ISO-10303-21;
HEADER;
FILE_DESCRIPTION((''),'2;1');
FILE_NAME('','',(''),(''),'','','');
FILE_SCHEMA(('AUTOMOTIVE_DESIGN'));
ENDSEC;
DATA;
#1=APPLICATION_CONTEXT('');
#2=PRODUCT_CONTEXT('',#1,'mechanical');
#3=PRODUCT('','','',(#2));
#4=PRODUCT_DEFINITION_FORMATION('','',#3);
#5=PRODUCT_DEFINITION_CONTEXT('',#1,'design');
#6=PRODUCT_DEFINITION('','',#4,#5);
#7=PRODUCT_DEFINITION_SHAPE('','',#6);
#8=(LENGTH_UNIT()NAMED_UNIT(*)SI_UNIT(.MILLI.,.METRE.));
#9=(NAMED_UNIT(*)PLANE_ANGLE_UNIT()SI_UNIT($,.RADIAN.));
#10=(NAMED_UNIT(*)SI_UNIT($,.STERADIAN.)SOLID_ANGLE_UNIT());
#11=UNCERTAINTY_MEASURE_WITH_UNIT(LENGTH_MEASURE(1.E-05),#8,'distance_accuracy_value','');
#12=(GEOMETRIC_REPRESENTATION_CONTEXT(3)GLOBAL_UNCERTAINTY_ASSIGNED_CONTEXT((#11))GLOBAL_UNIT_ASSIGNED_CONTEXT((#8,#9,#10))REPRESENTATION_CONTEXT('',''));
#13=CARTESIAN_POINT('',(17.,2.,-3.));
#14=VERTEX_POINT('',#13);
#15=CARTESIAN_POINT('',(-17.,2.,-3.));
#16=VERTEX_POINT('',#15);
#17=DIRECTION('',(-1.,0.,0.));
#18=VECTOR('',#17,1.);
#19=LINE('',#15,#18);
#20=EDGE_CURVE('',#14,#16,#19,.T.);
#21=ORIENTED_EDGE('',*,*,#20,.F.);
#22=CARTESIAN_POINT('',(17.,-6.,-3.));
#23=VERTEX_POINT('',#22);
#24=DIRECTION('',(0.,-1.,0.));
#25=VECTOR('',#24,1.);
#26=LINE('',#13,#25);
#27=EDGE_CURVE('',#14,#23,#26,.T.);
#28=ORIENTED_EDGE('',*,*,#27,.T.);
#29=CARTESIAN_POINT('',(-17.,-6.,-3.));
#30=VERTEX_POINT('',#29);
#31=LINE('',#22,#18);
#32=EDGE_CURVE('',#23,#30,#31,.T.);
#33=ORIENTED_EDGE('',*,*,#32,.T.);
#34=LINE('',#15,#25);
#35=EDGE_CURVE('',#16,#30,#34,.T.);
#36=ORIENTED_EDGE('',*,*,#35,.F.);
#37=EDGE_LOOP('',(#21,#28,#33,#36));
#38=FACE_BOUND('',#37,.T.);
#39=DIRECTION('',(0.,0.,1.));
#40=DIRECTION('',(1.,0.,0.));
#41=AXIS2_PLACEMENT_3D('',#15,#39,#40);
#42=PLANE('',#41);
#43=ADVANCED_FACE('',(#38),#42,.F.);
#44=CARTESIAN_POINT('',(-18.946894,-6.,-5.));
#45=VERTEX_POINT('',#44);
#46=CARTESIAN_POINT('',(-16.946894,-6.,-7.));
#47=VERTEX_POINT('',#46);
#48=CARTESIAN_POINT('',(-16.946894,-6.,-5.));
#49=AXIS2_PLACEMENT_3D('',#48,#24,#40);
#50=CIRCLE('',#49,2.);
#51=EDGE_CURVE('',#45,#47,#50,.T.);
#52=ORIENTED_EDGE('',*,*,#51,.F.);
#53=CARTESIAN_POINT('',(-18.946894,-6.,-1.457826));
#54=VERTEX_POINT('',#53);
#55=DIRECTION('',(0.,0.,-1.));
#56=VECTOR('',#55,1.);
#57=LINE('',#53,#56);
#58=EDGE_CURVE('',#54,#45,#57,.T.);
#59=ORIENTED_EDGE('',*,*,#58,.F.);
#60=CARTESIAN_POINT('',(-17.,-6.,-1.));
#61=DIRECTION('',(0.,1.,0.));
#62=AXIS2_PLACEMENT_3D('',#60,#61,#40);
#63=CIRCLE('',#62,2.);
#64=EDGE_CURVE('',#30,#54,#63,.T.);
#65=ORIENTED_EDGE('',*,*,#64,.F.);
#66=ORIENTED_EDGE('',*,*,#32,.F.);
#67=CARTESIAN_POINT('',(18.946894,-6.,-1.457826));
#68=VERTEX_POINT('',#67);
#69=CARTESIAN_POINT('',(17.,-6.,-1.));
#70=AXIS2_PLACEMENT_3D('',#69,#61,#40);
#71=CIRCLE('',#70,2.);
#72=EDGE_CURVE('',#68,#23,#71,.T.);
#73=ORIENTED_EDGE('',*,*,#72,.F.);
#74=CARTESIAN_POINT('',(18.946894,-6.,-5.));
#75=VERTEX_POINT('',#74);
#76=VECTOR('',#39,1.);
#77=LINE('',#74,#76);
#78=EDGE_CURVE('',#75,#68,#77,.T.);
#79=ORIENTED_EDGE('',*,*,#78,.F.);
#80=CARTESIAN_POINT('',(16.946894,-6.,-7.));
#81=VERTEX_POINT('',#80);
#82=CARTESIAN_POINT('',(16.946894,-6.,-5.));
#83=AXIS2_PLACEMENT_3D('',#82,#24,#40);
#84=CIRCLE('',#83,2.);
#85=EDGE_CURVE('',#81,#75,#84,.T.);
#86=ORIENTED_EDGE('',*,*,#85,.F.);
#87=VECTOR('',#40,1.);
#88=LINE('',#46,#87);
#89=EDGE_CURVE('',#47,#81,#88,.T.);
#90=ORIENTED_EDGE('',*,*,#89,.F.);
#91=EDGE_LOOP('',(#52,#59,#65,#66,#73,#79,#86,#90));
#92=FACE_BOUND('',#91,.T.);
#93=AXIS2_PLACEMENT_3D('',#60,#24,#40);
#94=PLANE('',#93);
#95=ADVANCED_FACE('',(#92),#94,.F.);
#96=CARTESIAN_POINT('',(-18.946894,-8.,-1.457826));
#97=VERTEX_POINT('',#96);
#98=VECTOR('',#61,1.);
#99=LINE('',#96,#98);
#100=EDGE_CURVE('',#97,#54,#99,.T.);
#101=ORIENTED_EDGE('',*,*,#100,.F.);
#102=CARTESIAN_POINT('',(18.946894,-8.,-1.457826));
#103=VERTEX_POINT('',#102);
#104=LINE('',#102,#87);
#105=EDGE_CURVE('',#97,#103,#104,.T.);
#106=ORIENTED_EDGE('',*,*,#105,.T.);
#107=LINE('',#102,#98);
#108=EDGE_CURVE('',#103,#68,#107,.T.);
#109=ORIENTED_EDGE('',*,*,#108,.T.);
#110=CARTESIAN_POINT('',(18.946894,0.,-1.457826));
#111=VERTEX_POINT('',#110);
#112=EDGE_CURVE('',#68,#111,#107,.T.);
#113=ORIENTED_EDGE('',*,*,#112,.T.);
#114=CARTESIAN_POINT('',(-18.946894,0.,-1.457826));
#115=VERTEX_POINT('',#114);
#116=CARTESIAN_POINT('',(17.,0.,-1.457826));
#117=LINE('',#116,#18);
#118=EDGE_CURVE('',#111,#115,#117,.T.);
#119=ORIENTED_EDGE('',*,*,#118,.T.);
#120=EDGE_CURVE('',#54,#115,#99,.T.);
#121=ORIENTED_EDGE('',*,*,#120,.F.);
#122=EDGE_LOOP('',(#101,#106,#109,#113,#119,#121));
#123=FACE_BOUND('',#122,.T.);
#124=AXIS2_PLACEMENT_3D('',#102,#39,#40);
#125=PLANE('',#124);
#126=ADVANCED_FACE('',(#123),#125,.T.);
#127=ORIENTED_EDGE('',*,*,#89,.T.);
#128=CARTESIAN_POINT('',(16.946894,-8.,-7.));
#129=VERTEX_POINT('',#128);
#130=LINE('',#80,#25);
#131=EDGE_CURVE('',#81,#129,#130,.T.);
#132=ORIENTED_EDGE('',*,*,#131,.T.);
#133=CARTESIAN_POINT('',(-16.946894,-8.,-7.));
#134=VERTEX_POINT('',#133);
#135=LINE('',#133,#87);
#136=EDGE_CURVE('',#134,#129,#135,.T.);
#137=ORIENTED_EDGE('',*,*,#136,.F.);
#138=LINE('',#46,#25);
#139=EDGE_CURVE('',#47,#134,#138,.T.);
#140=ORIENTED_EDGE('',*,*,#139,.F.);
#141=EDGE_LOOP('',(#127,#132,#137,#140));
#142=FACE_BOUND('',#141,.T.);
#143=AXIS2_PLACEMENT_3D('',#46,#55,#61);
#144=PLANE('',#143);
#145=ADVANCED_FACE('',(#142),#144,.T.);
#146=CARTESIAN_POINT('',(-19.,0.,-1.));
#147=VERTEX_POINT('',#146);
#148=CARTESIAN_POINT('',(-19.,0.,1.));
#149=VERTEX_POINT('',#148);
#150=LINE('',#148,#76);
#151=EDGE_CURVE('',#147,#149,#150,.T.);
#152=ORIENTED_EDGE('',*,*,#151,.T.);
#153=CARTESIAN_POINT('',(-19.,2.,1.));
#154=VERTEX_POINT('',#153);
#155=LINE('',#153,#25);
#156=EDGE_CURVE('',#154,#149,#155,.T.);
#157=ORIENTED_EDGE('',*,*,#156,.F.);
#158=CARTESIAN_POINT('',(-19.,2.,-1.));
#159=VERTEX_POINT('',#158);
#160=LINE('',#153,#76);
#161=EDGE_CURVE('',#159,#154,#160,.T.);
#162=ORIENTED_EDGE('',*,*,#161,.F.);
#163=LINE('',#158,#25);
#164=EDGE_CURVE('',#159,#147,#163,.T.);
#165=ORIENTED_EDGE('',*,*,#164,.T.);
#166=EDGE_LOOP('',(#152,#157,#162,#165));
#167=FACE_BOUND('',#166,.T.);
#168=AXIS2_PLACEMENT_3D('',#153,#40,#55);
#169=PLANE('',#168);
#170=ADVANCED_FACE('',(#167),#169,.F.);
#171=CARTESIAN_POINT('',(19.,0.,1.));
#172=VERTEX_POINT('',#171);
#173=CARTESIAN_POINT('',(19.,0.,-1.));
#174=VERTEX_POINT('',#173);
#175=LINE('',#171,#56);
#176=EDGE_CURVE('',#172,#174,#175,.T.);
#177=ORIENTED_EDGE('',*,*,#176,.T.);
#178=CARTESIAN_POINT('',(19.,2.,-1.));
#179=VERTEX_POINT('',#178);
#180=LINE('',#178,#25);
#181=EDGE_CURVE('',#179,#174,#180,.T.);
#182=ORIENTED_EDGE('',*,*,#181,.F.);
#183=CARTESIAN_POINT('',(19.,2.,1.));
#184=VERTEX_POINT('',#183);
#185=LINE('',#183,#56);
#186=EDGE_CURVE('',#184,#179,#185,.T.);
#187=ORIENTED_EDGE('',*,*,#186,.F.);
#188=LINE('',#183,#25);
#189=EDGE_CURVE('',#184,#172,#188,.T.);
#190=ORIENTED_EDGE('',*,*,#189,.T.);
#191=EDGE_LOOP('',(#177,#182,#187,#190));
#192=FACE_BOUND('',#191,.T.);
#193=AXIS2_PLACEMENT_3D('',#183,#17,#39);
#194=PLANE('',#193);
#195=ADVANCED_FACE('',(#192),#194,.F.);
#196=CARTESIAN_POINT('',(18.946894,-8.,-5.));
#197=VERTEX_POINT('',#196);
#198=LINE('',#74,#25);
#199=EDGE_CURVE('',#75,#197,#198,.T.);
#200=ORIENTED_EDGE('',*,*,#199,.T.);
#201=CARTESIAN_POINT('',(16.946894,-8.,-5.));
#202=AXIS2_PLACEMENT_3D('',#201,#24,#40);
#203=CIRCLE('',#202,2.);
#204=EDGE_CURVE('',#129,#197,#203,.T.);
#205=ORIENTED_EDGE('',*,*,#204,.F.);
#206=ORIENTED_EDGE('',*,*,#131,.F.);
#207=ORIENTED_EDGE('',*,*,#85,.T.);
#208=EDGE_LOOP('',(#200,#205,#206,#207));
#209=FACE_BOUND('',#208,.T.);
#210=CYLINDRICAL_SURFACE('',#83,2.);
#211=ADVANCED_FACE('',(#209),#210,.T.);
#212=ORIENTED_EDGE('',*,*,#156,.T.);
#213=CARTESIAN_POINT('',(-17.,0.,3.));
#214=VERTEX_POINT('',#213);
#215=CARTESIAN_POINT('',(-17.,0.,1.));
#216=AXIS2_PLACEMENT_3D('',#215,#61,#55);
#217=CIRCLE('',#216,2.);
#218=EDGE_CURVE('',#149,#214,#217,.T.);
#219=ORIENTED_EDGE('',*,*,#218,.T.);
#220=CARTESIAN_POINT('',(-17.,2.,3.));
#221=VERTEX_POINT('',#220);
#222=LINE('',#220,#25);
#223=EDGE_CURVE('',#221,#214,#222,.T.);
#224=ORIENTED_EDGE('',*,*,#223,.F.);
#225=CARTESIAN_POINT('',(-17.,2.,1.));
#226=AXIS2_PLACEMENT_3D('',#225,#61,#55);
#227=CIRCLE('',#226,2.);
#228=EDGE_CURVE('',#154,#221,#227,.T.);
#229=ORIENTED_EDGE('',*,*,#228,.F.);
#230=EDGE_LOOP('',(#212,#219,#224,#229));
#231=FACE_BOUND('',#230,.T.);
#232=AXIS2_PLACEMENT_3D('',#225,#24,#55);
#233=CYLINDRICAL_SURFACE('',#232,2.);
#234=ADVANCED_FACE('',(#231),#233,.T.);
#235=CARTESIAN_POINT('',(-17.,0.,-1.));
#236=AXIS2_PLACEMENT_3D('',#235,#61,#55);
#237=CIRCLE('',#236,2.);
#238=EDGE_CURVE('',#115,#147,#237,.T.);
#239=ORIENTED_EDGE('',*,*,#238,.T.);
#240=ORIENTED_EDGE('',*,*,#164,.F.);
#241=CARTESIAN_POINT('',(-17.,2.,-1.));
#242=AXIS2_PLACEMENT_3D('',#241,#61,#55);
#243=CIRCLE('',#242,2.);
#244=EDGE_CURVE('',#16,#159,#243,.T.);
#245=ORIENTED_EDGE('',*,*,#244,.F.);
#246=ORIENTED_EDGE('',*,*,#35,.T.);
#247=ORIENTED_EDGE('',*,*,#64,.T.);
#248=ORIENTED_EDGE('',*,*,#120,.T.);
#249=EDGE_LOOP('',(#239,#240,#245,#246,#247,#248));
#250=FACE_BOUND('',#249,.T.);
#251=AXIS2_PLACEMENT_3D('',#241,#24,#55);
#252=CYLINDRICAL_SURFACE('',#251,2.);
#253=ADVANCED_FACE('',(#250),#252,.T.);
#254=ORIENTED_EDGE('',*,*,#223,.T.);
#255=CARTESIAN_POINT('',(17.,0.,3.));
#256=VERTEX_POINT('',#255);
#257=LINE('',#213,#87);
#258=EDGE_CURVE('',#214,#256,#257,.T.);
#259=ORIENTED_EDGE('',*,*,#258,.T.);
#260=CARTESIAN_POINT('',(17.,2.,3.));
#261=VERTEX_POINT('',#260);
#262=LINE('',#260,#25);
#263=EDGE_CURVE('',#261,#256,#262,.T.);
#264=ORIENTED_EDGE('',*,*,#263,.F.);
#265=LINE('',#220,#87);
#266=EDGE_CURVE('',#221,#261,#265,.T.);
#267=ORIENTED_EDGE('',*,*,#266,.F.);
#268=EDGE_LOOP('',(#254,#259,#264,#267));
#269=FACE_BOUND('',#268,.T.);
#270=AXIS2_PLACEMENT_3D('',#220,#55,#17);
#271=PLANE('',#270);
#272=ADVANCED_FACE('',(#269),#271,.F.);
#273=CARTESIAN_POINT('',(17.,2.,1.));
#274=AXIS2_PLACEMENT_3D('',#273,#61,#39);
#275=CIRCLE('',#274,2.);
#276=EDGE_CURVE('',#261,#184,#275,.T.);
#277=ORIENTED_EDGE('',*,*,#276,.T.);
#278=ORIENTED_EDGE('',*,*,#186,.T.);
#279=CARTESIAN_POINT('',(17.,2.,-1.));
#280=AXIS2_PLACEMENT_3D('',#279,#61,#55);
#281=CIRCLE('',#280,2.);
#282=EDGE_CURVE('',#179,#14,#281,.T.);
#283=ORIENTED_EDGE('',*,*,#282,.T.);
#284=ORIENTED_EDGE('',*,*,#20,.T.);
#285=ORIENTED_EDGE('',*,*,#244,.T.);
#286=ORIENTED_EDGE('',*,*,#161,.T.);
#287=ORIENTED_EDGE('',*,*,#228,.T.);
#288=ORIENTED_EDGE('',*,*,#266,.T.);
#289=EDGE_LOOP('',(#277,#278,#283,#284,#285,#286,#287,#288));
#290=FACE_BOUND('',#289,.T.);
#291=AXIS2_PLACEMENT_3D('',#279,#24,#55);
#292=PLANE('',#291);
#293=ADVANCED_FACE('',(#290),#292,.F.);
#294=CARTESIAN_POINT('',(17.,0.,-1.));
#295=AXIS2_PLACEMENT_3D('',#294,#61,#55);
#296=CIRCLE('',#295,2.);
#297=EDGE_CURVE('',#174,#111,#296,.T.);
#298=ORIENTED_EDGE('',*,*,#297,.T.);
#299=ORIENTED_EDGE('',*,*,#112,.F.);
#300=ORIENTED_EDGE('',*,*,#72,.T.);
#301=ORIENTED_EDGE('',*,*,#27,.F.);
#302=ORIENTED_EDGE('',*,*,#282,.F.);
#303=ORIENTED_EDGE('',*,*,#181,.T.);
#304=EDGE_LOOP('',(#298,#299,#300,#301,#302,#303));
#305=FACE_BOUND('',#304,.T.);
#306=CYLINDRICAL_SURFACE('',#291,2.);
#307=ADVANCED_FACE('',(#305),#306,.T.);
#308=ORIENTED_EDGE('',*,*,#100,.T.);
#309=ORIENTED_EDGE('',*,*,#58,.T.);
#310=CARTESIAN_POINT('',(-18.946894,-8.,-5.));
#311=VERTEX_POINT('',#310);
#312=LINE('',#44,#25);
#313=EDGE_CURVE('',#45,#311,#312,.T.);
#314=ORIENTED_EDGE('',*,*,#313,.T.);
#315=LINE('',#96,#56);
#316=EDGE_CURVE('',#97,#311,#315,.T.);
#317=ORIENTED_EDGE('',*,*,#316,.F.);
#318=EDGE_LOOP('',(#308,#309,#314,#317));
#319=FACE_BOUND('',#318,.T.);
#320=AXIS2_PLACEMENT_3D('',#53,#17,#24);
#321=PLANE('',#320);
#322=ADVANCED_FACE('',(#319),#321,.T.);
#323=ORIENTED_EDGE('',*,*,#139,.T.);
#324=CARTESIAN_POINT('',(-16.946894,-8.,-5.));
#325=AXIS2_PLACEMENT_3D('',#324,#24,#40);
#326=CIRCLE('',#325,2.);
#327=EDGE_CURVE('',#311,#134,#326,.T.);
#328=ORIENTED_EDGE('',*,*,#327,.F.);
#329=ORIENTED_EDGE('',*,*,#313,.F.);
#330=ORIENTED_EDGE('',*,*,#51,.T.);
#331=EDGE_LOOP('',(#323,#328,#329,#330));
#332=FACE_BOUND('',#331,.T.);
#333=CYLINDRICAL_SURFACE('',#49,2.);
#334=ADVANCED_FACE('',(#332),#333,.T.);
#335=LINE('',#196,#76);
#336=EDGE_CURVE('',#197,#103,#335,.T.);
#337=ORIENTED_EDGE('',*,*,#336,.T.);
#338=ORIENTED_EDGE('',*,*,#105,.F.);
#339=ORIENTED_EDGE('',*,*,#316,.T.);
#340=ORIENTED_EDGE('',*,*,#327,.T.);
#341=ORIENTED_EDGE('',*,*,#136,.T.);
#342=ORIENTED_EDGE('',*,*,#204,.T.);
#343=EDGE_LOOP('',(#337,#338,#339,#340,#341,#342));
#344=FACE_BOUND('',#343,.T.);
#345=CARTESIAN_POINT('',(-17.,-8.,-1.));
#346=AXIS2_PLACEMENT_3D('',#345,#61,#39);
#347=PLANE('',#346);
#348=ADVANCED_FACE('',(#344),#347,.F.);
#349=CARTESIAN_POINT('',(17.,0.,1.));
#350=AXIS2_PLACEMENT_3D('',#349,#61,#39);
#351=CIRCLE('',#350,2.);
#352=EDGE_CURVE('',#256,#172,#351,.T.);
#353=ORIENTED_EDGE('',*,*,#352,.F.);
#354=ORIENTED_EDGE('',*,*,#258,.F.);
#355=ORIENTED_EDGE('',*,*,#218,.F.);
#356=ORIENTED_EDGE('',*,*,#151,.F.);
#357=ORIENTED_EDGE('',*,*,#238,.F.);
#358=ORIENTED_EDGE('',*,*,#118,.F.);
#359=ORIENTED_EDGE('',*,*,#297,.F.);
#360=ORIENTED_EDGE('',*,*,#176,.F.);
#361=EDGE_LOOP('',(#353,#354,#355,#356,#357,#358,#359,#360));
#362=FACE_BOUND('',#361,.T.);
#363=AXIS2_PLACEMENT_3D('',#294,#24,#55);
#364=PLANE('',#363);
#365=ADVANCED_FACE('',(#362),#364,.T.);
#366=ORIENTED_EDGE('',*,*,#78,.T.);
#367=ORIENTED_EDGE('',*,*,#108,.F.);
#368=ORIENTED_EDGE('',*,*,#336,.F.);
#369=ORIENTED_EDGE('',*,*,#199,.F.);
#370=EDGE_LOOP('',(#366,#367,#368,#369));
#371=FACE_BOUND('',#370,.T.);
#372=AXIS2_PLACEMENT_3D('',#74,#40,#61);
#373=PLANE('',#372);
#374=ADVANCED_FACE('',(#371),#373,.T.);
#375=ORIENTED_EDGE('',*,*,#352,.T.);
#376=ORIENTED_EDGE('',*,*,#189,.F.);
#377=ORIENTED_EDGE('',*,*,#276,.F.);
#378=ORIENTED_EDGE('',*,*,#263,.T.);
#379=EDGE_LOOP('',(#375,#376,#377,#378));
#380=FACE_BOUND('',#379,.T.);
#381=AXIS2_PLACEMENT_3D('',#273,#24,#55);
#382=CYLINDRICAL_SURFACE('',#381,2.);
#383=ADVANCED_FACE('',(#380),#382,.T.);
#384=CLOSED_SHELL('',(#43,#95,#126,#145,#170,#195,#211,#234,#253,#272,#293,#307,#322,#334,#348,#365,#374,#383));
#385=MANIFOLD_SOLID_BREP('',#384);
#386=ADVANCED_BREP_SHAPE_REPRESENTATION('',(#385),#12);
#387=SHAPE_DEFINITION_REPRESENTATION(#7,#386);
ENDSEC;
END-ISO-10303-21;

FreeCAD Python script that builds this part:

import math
import FreeCAD as App
import Part
import Sketcher

V = App.Vector
Q = App.Units.Quantity

doc = App.newDocument("Part")
body = doc.addObject("PartDesign::Body", "Body")

sketch1 = body.newObject("Sketcher::SketchObject", "Sketch")
sketch1.AttachmentSupport = (doc.getObject("XZ_Plane"), [""])
sketch1.MapMode = "FlatFace"
sketch1.addGeometry(Part.LineSegment(V(-17, 3, 0), V(17, 3, 0)), False)
sketch1.addGeometry(Part.ArcOfCircle(Part.Circle(V(17, 1, 0), V(0, 0, 1), 2), math.radians(0), math.radians(90)), False)
sketch1.addGeometry(Part.LineSegment(V(19, 1, 0), V(19, -1, 0)), False)
sketch1.addGeometry(Part.ArcOfCircle(Part.Circle(V(17, -1, 0), V(0, 0, 1), 2), math.radians(-90), math.radians(0)), False)
sketch1.addGeometry(Part.LineSegment(V(17, -3, 0), V(-17, -3, 0)), False)
sketch1.addGeometry(Part.ArcOfCircle(Part.Circle(V(-17, -1, 0), V(0, 0, 1), 2), math.radians(-180), math.radians(-90)), False)
sketch1.addGeometry(Part.LineSegment(V(-19, -1, 0), V(-19, 1, 0)), False)
sketch1.addGeometry(Part.ArcOfCircle(Part.Circle(V(-17, 1, 0), V(0, 0, 1), 2), math.radians(90), math.radians(180)), False)
sketch1.addConstraint(Sketcher.Constraint("Tangent", 0, 2, 1, 2))
sketch1.addConstraint(Sketcher.Constraint("Tangent", 1, 1, 2, 1))
sketch1.addConstraint(Sketcher.Constraint("Tangent", 2, 2, 3, 2))
sketch1.addConstraint(Sketcher.Constraint("Tangent", 3, 1, 4, 1))
sketch1.addConstraint(Sketcher.Constraint("Tangent", 4, 2, 5, 2))
sketch1.addConstraint(Sketcher.Constraint("Tangent", 5, 1, 6, 1))
sketch1.addConstraint(Sketcher.Constraint("Tangent", 6, 2, 7, 2))
sketch1.addConstraint(Sketcher.Constraint("Tangent", 7, 1, 0, 1))
sketch1.addConstraint(Sketcher.Constraint("Horizontal", 0))
sketch1.addConstraint(Sketcher.Constraint("Vertical", 2))
sketch1.addConstraint(Sketcher.Constraint("Horizontal", 4))
sketch1.addConstraint(Sketcher.Constraint("Vertical", 6))
sketch1.addConstraint(Sketcher.Constraint("Equal", 1, 3))
sketch1.addConstraint(Sketcher.Constraint("Equal", 3, 5))
sketch1.addConstraint(Sketcher.Constraint("Equal", 5, 7))
sketch1.addConstraint(Sketcher.Constraint("Symmetric", 1, 3, 5, 3, -1, 1))
sketch1.addConstraint(Sketcher.Constraint("Radius", 1, Q("2 mm")))
sketch1.addConstraint(Sketcher.Constraint("DistanceX", 0, 1, 0, 2, Q("34 mm")))
sketch1.addConstraint(Sketcher.Constraint("DistanceY", 2, 2, 2, 1, Q("2 mm")))
pad1 = body.newObject("PartDesign::Pad", "Pad")
pad1.Profile = sketch1
pad1.Length = 2
pad1.Reversed = True

sketch2 = body.newObject("Sketcher::SketchObject", "Sketch001")
sketch2.AttachmentSupport = (doc.getObject("XZ_Plane"), [""])
sketch2.MapMode = "FlatFace"
sketch2.AttachmentOffset = App.Placement(V(0, 0, 8), App.Rotation())
sketch2.addGeometry(Part.LineSegment(V(17, -3, 0), V(-17, -3, 0)), False)
sketch2.addGeometry(Part.ArcOfCircle(Part.Circle(V(-17, -1, 0), V(0, 0, 1), 2), math.radians(-167), math.radians(-90)), False)
sketch2.addGeometry(Part.LineSegment(V(-18.9, -1.5, 0), V(18.9, -1.5, 0)), False)
sketch2.addGeometry(Part.ArcOfCircle(Part.Circle(V(17, -1, 0), V(0, 0, 1), 2), math.radians(-90), math.radians(-13)), False)
sketch2.addConstraint(Sketcher.Constraint("Tangent", 0, 2, 1, 2))
sketch2.addConstraint(Sketcher.Constraint("Coincident", 1, 1, 2, 1))
sketch2.addConstraint(Sketcher.Constraint("Coincident", 2, 2, 3, 2))
sketch2.addConstraint(Sketcher.Constraint("Tangent", 3, 1, 0, 1))
sketch2.addConstraint(Sketcher.Constraint("Horizontal", 0))
sketch2.addConstraint(Sketcher.Constraint("Horizontal", 2))
sketch2.addConstraint(Sketcher.Constraint("Equal", 1, 3))
sketch2.addConstraint(Sketcher.Constraint("Radius", 1, Q("2 mm")))
sketch2.addConstraint(Sketcher.Constraint("DistanceX", 0, 2, 0, 1, Q("34 mm")))
sketch2.addConstraint(Sketcher.Constraint("DistanceX", 1, 3, -1, 1, Q("17 mm")))
sketch2.addConstraint(Sketcher.Constraint("DistanceY", 1, 3, -1, 1, Q("1 mm")))
sketch2.addConstraint(Sketcher.Constraint("DistanceX", 2, 1, 2, 2, Q("37.893787 mm")))
pad2 = body.newObject("PartDesign::Pad", "Pad001")
pad2.Profile = sketch2
pad2.Length = 10
pad2.Reversed = True

sketch3 = body.newObject("Sketcher::SketchObject", "Sketch002")
sketch3.AttachmentSupport = (doc.getObject("XZ_Plane"), [""])
sketch3.MapMode = "FlatFace"
sketch3.AttachmentOffset = App.Placement(V(0, 0, 8), App.Rotation())
sketch3.addGeometry(Part.LineSegment(V(-18.9, -1.5, 0), V(-18.9, -5, 0)), False)
sketch3.addGeometry(Part.ArcOfCircle(Part.Circle(V(-16.9, -5, 0), V(0, 0, 1), 2), math.radians(-180), math.radians(-90)), False)
sketch3.addGeometry(Part.LineSegment(V(-16.9, -7, 0), V(16.9, -7, 0)), False)
sketch3.addGeometry(Part.ArcOfCircle(Part.Circle(V(16.9, -5, 0), V(0, 0, 1), 2), math.radians(-90), math.radians(0)), False)
sketch3.addGeometry(Part.LineSegment(V(18.9, -5, 0), V(18.9, -1.5, 0)), False)
sketch3.addGeometry(Part.ArcOfCircle(Part.Circle(V(17, -1, 0), V(0, 0, 1), 2), math.radians(-90), math.radians(-13)), False)
sketch3.addGeometry(Part.LineSegment(V(17, -3, 0), V(-17, -3, 0)), False)
sketch3.addGeometry(Part.ArcOfCircle(Part.Circle(V(-17, -1, 0), V(0, 0, 1), 2), math.radians(-167), math.radians(-90)), False)
sketch3.addConstraint(Sketcher.Constraint("Tangent", 0, 2, 1, 1))
sketch3.addConstraint(Sketcher.Constraint("Tangent", 1, 2, 2, 1))
sketch3.addConstraint(Sketcher.Constraint("Tangent", 2, 2, 3, 1))
sketch3.addConstraint(Sketcher.Constraint("Tangent", 3, 2, 4, 1))
sketch3.addConstraint(Sketcher.Constraint("Coincident", 4, 2, 5, 2))
sketch3.addConstraint(Sketcher.Constraint("Tangent", 5, 1, 6, 1))
sketch3.addConstraint(Sketcher.Constraint("Tangent", 6, 2, 7, 2))
sketch3.addConstraint(Sketcher.Constraint("Coincident", 7, 1, 0, 1))
sketch3.addConstraint(Sketcher.Constraint("Vertical", 0))
sketch3.addConstraint(Sketcher.Constraint("Horizontal", 2))
sketch3.addConstraint(Sketcher.Constraint("Vertical", 4))
sketch3.addConstraint(Sketcher.Constraint("Horizontal", 6))
sketch3.addConstraint(Sketcher.Constraint("Equal", 1, 3))
sketch3.addConstraint(Sketcher.Constraint("Equal", 3, 5))
sketch3.addConstraint(Sketcher.Constraint("Equal", 5, 7))
sketch3.addConstraint(Sketcher.Constraint("Symmetric", 4, 2, 7, 1, -2))
sketch3.addConstraint(Sketcher.Constraint("Radius", 1, Q("2 mm")))
sketch3.addConstraint(Sketcher.Constraint("DistanceX", 6, 2, 6, 1, Q("34 mm")))
sketch3.addConstraint(Sketcher.Constraint("DistanceY", 1, 3, -1, 1, Q("5 mm")))
sketch3.addConstraint(Sketcher.Constraint("DistanceY", 5, 3, -1, 1, Q("1 mm")))
sketch3.addConstraint(Sketcher.Constraint("DistanceX", 2, 1, 2, 2, Q("33.893787 mm")))
pad3 = body.newObject("PartDesign::Pad", "Pad002")
pad3.Profile = sketch3
pad3.Length = 2
pad3.Reversed = True

doc.recompute()
